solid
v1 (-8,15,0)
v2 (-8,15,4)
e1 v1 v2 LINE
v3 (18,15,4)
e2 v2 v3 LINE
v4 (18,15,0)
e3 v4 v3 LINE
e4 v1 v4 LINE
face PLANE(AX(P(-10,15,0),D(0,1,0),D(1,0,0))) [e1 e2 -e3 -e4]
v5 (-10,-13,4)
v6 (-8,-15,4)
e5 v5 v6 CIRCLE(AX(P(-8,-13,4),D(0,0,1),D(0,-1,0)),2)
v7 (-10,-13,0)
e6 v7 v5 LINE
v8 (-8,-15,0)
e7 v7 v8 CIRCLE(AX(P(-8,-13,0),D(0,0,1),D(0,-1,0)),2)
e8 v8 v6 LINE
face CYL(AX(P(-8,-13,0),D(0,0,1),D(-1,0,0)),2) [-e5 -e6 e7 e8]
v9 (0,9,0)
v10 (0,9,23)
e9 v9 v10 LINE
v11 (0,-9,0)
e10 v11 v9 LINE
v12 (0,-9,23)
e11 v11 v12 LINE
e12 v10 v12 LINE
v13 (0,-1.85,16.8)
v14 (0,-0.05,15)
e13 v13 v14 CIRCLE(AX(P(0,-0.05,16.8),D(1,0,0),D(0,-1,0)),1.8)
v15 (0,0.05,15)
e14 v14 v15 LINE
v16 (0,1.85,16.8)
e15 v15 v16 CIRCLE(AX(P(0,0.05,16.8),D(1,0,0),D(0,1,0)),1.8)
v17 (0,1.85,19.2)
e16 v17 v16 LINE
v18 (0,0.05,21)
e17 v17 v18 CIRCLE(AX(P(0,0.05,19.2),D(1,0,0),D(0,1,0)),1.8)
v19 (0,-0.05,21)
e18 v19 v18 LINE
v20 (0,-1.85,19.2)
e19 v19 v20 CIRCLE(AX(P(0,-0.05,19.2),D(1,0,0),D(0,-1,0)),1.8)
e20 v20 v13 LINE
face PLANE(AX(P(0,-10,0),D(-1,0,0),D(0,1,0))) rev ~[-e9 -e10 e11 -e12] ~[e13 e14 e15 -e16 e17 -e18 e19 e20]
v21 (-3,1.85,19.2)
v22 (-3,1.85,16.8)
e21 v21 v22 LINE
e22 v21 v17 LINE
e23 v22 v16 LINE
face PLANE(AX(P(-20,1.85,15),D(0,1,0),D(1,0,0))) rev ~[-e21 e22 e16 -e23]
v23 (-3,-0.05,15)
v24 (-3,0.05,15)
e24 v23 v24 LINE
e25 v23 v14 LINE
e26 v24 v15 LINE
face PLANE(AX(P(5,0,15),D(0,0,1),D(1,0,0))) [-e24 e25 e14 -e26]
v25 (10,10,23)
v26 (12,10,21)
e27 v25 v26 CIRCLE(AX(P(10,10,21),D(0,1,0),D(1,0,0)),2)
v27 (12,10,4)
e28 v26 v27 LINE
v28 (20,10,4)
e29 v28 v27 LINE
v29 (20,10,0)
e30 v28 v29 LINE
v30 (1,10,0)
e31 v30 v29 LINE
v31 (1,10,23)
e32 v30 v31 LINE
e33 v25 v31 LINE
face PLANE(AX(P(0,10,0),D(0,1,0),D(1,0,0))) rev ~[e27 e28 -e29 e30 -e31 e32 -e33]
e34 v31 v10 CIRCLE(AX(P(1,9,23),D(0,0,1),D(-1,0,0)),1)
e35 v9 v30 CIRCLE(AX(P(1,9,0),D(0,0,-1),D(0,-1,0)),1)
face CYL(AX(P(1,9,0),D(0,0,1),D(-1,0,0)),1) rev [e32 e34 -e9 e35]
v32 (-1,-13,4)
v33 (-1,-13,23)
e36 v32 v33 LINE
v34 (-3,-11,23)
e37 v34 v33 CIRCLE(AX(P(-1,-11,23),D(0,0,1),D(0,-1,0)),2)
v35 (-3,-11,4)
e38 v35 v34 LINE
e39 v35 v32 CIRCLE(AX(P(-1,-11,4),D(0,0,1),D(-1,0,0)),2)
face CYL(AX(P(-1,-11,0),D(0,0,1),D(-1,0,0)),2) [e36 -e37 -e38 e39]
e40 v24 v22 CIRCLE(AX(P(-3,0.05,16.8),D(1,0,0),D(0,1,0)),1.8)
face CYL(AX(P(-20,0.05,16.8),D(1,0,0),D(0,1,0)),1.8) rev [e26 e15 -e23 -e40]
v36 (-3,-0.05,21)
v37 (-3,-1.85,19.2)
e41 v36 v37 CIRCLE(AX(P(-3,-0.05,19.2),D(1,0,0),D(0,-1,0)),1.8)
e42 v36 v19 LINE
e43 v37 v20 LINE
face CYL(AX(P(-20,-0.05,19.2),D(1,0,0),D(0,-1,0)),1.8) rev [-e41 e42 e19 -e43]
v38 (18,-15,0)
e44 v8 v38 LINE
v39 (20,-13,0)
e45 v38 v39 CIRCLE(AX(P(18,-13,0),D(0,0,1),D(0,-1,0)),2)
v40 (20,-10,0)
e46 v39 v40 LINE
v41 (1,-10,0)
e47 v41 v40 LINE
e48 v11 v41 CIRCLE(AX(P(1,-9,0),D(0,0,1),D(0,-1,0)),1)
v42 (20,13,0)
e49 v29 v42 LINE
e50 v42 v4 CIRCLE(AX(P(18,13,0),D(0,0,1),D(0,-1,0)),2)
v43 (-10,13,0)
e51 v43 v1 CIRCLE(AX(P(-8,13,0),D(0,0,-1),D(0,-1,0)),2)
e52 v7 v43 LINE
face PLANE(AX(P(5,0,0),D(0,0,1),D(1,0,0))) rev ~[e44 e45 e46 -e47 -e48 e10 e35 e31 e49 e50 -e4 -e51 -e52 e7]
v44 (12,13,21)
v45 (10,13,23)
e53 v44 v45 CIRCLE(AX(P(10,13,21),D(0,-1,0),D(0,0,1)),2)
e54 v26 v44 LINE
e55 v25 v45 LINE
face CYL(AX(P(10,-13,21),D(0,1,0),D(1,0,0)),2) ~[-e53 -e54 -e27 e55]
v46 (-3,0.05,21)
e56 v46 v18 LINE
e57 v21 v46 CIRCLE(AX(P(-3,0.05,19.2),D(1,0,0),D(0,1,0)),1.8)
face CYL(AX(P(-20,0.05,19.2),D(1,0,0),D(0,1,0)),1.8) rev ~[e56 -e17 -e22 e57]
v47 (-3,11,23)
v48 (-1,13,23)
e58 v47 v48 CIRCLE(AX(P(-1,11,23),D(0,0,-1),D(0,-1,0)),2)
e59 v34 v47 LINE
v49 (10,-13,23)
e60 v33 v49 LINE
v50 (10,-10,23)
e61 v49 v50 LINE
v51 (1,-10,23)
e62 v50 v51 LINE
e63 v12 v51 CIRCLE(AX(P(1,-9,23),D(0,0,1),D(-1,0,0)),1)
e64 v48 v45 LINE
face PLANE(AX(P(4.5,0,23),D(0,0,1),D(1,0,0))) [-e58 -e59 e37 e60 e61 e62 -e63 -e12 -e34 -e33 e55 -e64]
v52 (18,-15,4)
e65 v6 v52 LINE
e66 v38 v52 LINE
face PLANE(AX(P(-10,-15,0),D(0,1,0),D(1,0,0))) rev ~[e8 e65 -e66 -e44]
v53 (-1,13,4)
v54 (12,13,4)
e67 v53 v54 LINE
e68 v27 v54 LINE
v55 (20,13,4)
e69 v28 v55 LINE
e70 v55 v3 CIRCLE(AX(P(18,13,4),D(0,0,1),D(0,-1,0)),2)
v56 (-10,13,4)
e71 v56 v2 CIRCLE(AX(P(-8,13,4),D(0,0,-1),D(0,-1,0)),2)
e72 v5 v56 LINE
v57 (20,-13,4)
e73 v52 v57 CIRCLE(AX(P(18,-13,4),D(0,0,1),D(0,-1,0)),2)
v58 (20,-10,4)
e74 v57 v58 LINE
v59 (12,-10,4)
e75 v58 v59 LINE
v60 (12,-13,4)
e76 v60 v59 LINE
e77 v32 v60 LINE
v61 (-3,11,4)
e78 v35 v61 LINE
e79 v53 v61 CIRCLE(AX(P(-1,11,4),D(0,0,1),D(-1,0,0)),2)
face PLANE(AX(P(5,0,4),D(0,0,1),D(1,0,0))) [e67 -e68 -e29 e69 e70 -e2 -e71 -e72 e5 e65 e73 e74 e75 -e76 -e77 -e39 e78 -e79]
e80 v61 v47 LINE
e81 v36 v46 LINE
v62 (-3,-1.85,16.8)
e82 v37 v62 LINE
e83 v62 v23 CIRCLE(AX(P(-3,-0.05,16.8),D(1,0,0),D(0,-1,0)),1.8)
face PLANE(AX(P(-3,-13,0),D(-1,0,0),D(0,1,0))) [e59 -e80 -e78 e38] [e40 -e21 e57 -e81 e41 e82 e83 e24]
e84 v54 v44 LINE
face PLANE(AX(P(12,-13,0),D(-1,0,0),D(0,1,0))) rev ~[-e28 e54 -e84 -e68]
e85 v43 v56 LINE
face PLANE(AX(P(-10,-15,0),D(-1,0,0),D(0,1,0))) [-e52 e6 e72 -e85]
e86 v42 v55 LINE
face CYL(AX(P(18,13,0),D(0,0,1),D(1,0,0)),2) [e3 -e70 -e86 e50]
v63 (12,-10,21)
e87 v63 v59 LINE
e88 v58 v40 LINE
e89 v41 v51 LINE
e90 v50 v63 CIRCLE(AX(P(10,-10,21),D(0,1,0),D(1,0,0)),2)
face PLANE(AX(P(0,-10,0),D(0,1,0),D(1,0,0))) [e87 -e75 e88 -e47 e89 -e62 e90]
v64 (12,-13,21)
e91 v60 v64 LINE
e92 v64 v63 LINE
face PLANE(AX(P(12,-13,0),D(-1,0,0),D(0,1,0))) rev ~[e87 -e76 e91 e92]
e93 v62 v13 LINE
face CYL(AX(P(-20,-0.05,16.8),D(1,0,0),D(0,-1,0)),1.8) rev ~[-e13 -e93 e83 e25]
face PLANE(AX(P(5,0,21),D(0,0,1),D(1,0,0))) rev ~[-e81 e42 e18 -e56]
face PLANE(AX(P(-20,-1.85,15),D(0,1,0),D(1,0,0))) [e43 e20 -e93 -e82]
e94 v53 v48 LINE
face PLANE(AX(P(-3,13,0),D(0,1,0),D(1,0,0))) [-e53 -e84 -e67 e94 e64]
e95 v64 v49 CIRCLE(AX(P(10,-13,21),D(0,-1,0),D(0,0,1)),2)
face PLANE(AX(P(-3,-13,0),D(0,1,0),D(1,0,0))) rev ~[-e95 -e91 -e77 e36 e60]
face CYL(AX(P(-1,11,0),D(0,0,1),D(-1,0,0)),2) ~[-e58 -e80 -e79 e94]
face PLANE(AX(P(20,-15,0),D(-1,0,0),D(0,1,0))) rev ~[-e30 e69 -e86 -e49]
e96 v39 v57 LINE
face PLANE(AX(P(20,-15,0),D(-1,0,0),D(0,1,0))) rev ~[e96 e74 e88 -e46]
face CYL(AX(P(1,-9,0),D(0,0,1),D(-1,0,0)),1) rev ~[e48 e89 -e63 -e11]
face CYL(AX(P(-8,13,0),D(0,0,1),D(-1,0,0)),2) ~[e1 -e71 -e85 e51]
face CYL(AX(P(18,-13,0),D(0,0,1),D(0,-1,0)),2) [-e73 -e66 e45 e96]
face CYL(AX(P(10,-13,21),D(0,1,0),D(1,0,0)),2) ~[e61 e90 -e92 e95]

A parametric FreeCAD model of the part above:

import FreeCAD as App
import Part
import Sketcher
from FreeCAD import Vector


def edges_at(feature, points):
    """Names of the edges that pass closest to the given points."""
    edges = feature.Shape.Edges
    near = lambda p: min(range(len(edges)), key=lambda i: edges[i].distToShape(Part.Vertex(*p))[0])
    return sorted({f"Edge{near(p) + 1}" for p in points})


def add_polygon(sketch, points):
    """Adds a closed chain of lines whose ends are joined by coincident constraints."""
    first, n = sketch.GeometryCount, len(points)
    for a, b in zip(points, points[1:] + points[:1]):
        sketch.addGeometry(Part.LineSegment(App.Vector(*a, 0), App.Vector(*b, 0)), False)
    for i in range(n):
        sketch.addConstraint(Sketcher.Constraint("Coincident", first + i, 2, first + (i + 1) % n, 1))

doc = App.newDocument("Part")
body = doc.addObject("PartDesign::Body", "Body")

sketch1 = body.newObject("Sketcher::SketchObject", "Sketch")
sketch1.AttachmentSupport = (doc.getObject("XY_Plane"), [""])
sketch1.MapMode = "FlatFace"
sketch1.AttachmentOffset = App.Placement(Vector(0, 0, 15), App.Rotation())
add_polygon(sketch1, [(-20, 1.85), (-20, -1.85), (30, -1.85), (30, 1.85)])
sketch1.addConstraint(Sketcher.Constraint("Vertical", 0))
sketch1.addConstraint(Sketcher.Constraint("Horizontal", 1))
sketch1.addConstraint(Sketcher.Constraint("Vertical", 2))
sketch1.addConstraint(Sketcher.Constraint("Horizontal", 3))
sketch1.addConstraint(Sketcher.Constraint("DistanceX", 1, 1, 1, 2, 50.0))
sketch1.addConstraint(Sketcher.Constraint("DistanceY", 0, 2, 0, 1, 3.7))
sketch1.addConstraint(Sketcher.Constraint("DistanceX", 0, 2, -1, 1, 20.0))
sketch1.addConstraint(Sketcher.Constraint("DistanceY", 0, 2, -1, 1, 1.85))
pad1 = body.newObject("PartDesign::Pad", "Pad")
pad1.Profile = sketch1
pad1.Length = 6
doc.recompute()

fillet = body.newObject("PartDesign::Fillet", "Fillet")
fillet.Base = (pad1, edges_at(pad1, [
    (5, -1.85, 15),
    (5, -1.85, 21),
    (5, 1.85, 15),
    (5, 1.85, 21),
]))
fillet.Radius = 1.8
body2 = doc.addObject("PartDesign::Body", "Body001")

sketch2 = body2.newObject("Sketcher::SketchObject", "Sketch001")
sketch2.AttachmentSupport = (doc.getObject("XY_Plane001"), [""])
sketch2.MapMode = "FlatFace"
add_polygon(sketch2, [(0, 10), (0, -10), (50, -10), (50, 10)])
sketch2.addConstraint(Sketcher.Constraint("Vertical", 0))
sketch2.addConstraint(Sketcher.Constraint("Horizontal", 1))
sketch2.addConstraint(Sketcher.Constraint("Vertical", 2))
sketch2.addConstraint(Sketcher.Constraint("Horizontal", 3))
sketch2.addConstraint(Sketcher.Constraint("Symmetric", 0, 2, 3, 2, -1, 1))
sketch2.addConstraint(Sketcher.Constraint("DistanceX", 1, 1, 1, 2, 50.0))
sketch2.addConstraint(Sketcher.Constraint("DistanceY", 0, 2, 0, 1, 20.0))
pad2 = body2.newObject("PartDesign::Pad", "Pad001")
pad2.Profile = sketch2
pad2.Length = 50
doc.recompute()

fillet2 = body2.newObject("PartDesign::Fillet", "Fillet001")
fillet2.Base = (pad2, edges_at(pad2, [(0, -10, 25), (0, 10, 25)]))
fillet2.Radius = 1
doc.recompute()

boolean = body2.newObject("PartDesign::Boolean", "Boolean")
boolean.Type = "Fuse"
boolean.addObjects([body])
body3 = doc.addObject("PartDesign::Body", "Body002")

sketch3 = body3.newObject("Sketcher::SketchObject", "Sketch002")
sketch3.AttachmentSupport = (doc.getObject("XY_Plane002"), [""])
sketch3.MapMode = "FlatFace"
add_polygon(sketch3, [(-10, 15), (-10, -15), (20, -15), (20, 15)])
sketch3.addConstraint(Sketcher.Constraint("Vertical", 0))
sketch3.addConstraint(Sketcher.Constraint("Horizontal", 1))
sketch3.addConstraint(Sketcher.Constraint("Vertical", 2))
sketch3.addConstraint(Sketcher.Constraint("Horizontal", 3))
sketch3.addConstraint(Sketcher.Constraint("Equal", 3, 0))
sketch3.addConstraint(Sketcher.Constraint("DistanceX", 1, 1, 1, 2, 30.0))
sketch3.addConstraint(Sketcher.Constraint("DistanceX", 0, 2, -1, 1, 10.0))
sketch3.addConstraint(Sketcher.Constraint("DistanceY", 0, 2, -1, 1, 15.0))
pad3 = body3.newObject("PartDesign::Pad", "Pad002")
pad3.Profile = sketch3
pad3.Length = 4
doc.recompute()

fillet3 = body3.newObject("PartDesign::Fillet", "Fillet002")
fillet3.Base = (pad3, edges_at(pad3, [
    (-10, -15, 2),
    (-10, 15, 2),
    (20, -15, 2),
    (20, 15, 2),
]))
fillet3.Radius = 2
body4 = doc.addObject("PartDesign::Body", "Body003")

sketch4 = body4.newObject("Sketcher::SketchObject", "Sketch003")
sketch4.AttachmentSupport = (doc.getObject("XY_Plane003"), [""])
sketch4.MapMode = "FlatFace"
add_polygon(sketch4, [(-3, 13), (-3, -13), (12, -13), (12, 13)])
sketch4.addConstraint(Sketcher.Constraint("Vertical", 0))
sketch4.addConstraint(Sketcher.Constraint("Horizontal", 1))
sketch4.addConstraint(Sketcher.Constraint("Vertical", 2))
sketch4.addConstraint(Sketcher.Constraint("Horizontal", 3))
sketch4.addConstraint(Sketcher.Constraint("DistanceX", 1, 1, 1, 2, 15.0))
sketch4.addConstraint(Sketcher.Constraint("DistanceY", 0, 2, 0, 1, 26.0))
sketch4.addConstraint(Sketcher.Constraint("DistanceX", 0, 2, -1, 1, 3.0))
sketch4.addConstraint(Sketcher.Constraint("DistanceY", 0, 2, -1, 1, 13.0))
pad4 = body4.newObject("PartDesign::Pad", "Pad003")
pad4.Profile = sketch4
pad4.Length = 23
doc.recompute()

fillet4 = body4.newObject("PartDesign::Fillet", "Fillet003")
fillet4.Base = (pad4, edges_at(pad4, [(-3, -13, 11.5), (-3, 13, 11.5), (12, 0, 23)]))
fillet4.Radius = 2
doc.recompute()

boolean2 = body4.newObject("PartDesign::Boolean", "Boolean001")
boolean2.Type = "Fuse"
boolean2.addObjects([body3])
doc.recompute()

boolean3 = body4.newObject("PartDesign::Boolean", "Boolean002")
boolean3.Type = "Cut"
boolean3.addObjects([body2])

doc.recompute()
